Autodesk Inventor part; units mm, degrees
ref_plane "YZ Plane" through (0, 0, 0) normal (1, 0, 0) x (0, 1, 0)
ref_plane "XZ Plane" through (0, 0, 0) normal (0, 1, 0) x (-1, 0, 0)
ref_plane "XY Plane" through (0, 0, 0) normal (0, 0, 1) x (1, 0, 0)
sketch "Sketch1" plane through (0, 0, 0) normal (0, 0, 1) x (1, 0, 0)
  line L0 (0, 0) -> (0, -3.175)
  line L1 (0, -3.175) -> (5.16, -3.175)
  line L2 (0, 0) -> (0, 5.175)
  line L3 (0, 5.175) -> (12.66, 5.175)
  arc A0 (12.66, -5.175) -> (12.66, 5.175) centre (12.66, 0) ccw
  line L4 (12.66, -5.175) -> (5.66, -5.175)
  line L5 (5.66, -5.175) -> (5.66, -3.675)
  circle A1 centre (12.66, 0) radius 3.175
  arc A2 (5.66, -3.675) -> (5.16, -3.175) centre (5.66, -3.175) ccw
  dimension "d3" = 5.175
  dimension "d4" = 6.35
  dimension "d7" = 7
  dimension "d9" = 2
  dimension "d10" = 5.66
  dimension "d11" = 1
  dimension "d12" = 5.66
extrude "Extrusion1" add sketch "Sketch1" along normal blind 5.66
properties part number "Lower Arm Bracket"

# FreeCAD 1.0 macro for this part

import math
import FreeCAD as App
import Part
import Sketcher
Q = App.Units.Quantity

doc = App.newDocument("Part")
body = doc.addObject("PartDesign::Body", "Body")

# Sketch on XY plane
sketch1 = doc.addObject("Sketcher::SketchObject", "Sketch")
body.addObject(sketch1)
sketch1.AttachmentSupport = (doc.XY_Plane, [""])
sketch1.MapMode = "FlatFace"
sketch1.addGeometry([
    Part.LineSegment(App.Vector(0, 5.2, 0), App.Vector(0, -3.2, 0)),  # 0
    Part.LineSegment(App.Vector(0, -3.2, 0), App.Vector(5.2, -3.2, 0)),  # 1
    Part.ArcOfCircle(Part.Circle(App.Vector(5.7, -3.2, 0), App.Vector(0, 0, 1), 0.5), math.radians(-90), math.radians(180)),  # 2
    Part.LineSegment(App.Vector(5.7, -3.7, 0), App.Vector(5.7, -5.2, 0)),  # 3
    Part.LineSegment(App.Vector(5.7, -5.2, 0), App.Vector(12.7, -5.2, 0)),  # 4
    Part.ArcOfCircle(Part.Circle(App.Vector(12.7, 0, 0), App.Vector(0, 0, 1), 5.2), math.radians(-90), math.radians(90)),  # 5
    Part.LineSegment(App.Vector(12.7, 5.2, 0), App.Vector(0, 5.2, 0)),  # 6
    Part.Circle(App.Vector(12.7, 0, 0), App.Vector(0, 0, 1), 3.2),  # 7
], False)
sketch1.addConstraint([
    Sketcher.Constraint("Coincident", 0, 2, 1, 1),
    Sketcher.Constraint("Coincident", 1, 2, 2, 2),
    Sketcher.Constraint("Coincident", 2, 1, 3, 1),
    Sketcher.Constraint("Coincident", 3, 2, 4, 1),
    Sketcher.Constraint("Tangent", 4, 2, 5, 1),
    Sketcher.Constraint("Tangent", 5, 2, 6, 1),
    Sketcher.Constraint("Coincident", 6, 2, 0, 1),
    Sketcher.Constraint("Vertical", 0),
    Sketcher.Constraint("Horizontal", 1),
    Sketcher.Constraint("Vertical", 3),
    Sketcher.Constraint("Horizontal", 4),
    Sketcher.Constraint("Horizontal", 6),
    Sketcher.Constraint("Coincident", 7, 3, 5, 3),
    Sketcher.Constraint("PointOnObject", 5, 3, -1),
    Sketcher.Constraint("PointOnObject", 0, 2, -2),
    Sketcher.Constraint("Horizontal", 2, 3, 0, 2),
    Sketcher.Constraint("Radius", 2, Q("0.5 mm")),
    Sketcher.Constraint("Diameter", 7, Q("6.35 mm")),
    Sketcher.Constraint("DistanceX", 4, 1, 4, 2, Q("7 mm")),
    Sketcher.Constraint("Radius", 5, Q("5.175 mm")),
    Sketcher.Constraint("DistanceX", 2, 3, 5, 3, Q("7 mm")),
    Sketcher.Constraint("DistanceY", 3, 2, 2, 3, Q("2 mm")),
    Sketcher.Constraint("DistanceX", -1, 1, 2, 3, Q("5.66 mm")),
])
pad1 = doc.addObject("PartDesign::Pad", "Pad")
body.addObject(pad1)
pad1.Profile = sketch1
pad1.Length = 5.66

doc.recompute()
